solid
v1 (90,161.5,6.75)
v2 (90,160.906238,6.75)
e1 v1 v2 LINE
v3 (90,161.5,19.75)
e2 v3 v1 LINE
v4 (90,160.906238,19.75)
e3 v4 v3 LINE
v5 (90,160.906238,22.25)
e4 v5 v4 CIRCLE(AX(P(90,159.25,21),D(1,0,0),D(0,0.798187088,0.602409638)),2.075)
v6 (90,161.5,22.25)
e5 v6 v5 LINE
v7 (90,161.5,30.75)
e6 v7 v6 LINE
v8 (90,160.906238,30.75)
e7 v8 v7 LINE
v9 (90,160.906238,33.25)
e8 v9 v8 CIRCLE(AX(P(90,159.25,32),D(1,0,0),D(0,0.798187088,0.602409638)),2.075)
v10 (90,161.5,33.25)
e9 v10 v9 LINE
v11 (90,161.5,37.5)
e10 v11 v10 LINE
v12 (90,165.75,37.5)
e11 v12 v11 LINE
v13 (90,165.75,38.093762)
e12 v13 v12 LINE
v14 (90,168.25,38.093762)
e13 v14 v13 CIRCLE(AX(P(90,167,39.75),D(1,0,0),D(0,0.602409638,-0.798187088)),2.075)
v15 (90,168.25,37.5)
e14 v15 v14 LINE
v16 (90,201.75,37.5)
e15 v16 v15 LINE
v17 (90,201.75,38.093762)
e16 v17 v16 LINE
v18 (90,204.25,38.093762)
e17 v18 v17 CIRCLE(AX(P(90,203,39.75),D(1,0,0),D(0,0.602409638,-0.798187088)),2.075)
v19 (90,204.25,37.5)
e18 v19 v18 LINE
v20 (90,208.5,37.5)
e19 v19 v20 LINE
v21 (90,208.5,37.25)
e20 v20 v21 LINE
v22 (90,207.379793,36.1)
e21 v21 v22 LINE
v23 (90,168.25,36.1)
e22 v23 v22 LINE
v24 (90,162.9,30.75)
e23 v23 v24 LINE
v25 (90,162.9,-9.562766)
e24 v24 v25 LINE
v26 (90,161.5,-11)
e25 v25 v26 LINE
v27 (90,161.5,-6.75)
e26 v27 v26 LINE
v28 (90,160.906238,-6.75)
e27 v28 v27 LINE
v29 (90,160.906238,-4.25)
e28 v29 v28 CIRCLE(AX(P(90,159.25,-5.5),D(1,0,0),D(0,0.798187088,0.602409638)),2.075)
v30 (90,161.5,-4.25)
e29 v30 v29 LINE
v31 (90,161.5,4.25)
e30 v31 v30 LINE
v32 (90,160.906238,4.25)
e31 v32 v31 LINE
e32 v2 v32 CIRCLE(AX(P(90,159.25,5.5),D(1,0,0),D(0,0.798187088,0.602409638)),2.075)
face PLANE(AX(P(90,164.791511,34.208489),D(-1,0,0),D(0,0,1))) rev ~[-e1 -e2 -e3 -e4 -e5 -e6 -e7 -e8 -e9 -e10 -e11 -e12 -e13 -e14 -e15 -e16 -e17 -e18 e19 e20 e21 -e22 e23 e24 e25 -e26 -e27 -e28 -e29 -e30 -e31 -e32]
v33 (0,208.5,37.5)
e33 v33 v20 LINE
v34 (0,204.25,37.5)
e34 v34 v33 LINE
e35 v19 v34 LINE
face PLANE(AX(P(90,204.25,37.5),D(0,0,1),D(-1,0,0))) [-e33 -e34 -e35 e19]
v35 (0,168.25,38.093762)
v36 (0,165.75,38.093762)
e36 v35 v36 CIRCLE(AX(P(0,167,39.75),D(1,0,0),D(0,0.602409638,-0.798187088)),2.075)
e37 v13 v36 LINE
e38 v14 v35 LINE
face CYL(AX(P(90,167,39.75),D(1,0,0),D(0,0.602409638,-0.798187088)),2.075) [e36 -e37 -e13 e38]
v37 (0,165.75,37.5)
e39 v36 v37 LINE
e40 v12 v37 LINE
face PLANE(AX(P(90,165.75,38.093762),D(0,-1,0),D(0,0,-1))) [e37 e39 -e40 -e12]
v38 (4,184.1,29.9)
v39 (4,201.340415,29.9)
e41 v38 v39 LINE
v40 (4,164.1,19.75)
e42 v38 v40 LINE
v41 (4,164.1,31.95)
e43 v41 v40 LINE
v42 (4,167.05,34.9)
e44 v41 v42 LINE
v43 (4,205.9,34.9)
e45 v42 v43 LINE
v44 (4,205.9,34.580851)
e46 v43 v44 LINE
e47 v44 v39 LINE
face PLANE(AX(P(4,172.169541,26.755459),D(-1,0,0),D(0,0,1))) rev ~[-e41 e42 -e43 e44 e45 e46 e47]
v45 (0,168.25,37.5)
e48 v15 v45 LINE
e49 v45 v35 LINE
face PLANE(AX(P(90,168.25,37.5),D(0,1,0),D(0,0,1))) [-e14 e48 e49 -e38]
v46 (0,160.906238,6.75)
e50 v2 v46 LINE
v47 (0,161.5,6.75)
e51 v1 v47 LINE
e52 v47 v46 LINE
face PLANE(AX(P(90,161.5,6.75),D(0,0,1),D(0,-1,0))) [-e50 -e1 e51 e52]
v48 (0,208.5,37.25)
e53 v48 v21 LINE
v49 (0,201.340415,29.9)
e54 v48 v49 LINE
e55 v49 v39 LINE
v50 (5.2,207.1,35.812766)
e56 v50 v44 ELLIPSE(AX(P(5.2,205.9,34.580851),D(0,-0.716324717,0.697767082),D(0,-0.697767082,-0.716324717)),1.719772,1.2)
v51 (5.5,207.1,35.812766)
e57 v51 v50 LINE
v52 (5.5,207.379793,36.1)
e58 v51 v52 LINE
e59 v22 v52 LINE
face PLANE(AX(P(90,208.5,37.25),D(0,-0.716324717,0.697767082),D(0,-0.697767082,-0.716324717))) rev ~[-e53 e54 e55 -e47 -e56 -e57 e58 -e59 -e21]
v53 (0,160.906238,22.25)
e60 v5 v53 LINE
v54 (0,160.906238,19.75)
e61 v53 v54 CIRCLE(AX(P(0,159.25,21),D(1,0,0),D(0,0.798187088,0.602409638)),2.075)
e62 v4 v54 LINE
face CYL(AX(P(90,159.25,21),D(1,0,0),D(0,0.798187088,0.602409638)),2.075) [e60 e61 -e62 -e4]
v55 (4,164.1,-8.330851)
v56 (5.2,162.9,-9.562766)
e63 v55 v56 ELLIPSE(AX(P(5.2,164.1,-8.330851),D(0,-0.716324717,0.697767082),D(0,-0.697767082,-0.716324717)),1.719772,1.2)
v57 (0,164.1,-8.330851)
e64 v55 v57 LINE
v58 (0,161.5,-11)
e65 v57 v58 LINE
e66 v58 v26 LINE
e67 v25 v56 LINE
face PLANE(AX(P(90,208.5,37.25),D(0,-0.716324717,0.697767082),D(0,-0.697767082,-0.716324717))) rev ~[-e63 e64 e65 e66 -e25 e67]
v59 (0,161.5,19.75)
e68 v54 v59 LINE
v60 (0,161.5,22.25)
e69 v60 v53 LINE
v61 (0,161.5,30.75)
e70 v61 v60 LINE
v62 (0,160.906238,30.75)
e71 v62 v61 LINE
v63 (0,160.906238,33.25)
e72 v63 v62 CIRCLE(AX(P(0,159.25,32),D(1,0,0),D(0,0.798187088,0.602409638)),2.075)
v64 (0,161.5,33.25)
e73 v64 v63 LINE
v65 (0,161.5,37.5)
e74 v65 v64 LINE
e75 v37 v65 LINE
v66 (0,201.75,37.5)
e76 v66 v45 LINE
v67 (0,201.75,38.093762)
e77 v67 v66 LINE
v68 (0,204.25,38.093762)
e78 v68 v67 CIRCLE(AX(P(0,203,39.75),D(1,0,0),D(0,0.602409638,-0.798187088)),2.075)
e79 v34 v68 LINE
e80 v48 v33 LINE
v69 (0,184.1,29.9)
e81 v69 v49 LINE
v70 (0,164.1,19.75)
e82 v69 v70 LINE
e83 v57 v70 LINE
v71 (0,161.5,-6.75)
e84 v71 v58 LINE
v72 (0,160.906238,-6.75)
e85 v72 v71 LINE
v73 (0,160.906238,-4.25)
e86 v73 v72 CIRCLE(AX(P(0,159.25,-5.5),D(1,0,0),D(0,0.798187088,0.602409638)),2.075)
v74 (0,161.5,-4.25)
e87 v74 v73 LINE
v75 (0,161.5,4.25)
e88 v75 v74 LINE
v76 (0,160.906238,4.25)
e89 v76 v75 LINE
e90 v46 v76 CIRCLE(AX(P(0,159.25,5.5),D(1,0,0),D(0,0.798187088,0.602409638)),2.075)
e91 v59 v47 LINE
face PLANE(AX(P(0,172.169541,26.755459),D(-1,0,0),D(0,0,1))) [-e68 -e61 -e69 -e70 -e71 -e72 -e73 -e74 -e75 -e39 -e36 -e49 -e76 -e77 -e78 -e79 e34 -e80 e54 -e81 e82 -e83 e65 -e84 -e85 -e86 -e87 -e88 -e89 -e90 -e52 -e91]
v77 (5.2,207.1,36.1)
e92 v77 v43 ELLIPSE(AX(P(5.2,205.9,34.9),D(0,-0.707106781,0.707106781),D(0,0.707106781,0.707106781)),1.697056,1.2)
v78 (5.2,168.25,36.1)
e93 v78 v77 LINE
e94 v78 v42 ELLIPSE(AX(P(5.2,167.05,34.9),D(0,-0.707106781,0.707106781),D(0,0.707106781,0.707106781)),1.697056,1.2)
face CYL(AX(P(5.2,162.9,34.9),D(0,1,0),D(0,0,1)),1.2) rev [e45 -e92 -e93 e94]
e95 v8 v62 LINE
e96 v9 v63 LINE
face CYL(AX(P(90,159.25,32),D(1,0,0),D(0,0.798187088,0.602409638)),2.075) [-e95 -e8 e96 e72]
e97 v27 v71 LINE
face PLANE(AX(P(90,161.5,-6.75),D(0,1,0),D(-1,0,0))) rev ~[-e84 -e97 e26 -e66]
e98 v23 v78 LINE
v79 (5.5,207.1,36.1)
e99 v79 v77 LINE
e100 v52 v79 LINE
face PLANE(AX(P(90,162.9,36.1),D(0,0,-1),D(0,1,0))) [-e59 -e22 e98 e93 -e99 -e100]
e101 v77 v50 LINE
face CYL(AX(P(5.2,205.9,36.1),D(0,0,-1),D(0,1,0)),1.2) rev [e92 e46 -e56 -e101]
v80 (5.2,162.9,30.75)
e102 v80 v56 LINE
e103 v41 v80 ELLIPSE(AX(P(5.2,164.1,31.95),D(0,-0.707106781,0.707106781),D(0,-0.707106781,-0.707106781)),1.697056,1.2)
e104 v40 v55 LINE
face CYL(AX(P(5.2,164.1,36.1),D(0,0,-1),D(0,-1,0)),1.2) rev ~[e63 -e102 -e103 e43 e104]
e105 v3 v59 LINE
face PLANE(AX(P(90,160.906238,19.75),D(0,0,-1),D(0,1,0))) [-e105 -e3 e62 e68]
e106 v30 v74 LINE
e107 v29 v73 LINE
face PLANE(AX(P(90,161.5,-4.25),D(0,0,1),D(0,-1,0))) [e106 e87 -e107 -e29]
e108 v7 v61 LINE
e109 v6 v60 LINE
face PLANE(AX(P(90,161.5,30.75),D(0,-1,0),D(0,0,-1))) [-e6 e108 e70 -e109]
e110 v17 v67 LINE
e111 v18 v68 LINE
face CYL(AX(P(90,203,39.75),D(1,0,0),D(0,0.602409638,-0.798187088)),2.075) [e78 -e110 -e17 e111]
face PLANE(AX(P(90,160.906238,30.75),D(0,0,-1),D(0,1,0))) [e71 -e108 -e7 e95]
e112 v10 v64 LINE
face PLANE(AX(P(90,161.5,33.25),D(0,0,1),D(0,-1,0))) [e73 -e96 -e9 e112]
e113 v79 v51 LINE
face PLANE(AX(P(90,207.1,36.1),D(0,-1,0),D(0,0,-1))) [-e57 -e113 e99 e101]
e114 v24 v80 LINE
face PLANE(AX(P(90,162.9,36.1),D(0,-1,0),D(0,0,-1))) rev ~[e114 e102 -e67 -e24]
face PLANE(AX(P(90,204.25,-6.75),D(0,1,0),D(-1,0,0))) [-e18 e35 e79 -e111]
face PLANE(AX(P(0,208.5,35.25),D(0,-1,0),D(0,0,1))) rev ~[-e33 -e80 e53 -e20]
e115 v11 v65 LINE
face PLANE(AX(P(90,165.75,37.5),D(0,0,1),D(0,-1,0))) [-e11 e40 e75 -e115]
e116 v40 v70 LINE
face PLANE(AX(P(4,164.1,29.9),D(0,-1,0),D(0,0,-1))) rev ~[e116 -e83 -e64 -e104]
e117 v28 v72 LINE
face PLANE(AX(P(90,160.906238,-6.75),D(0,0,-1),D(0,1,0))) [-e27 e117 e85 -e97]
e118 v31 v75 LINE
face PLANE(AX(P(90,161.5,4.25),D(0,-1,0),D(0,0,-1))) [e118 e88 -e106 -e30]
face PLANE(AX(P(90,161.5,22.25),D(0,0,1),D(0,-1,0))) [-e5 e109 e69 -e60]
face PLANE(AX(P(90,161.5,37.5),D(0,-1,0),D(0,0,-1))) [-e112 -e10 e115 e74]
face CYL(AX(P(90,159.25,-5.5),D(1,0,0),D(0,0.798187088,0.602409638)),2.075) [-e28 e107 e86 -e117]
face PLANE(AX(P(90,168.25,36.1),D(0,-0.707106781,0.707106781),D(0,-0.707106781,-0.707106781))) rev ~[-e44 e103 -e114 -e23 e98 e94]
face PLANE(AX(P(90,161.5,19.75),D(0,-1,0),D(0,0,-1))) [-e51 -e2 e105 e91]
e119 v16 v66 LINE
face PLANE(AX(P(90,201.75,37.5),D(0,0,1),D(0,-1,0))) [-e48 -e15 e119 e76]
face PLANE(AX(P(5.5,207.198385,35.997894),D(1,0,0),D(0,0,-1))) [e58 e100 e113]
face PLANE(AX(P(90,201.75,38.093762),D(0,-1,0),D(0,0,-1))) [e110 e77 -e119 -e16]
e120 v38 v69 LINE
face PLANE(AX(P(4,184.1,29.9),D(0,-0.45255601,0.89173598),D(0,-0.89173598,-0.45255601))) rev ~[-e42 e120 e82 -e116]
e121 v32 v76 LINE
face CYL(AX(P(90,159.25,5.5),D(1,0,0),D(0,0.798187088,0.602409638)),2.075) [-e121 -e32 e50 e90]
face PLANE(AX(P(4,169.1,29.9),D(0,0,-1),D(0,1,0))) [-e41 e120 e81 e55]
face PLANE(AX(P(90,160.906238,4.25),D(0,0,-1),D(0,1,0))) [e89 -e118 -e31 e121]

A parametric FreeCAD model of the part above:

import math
import FreeCAD as App
import Part
import Sketcher

V = App.Vector


def edges_at(feature, points):
    """Names of the edges that pass closest to the given points."""
    edges = feature.Shape.Edges
    near = lambda p: min(range(len(edges)), key=lambda i: edges[i].distToShape(Part.Vertex(*p))[0])
    return sorted({f"Edge{near(p) + 1}" for p in points})


def add_polygon(sketch, points):
    """Adds a closed chain of lines whose ends are joined by coincident constraints."""
    first, n = sketch.GeometryCount, len(points)
    for a, b in zip(points, points[1:] + points[:1]):
        sketch.addGeometry(Part.LineSegment(App.Vector(*a, 0), App.Vector(*b, 0)), False)
    for i in range(n):
        sketch.addConstraint(Sketcher.Constraint("Coincident", first + i, 2, first + (i + 1) % n, 1))

doc = App.newDocument("Part")
body = doc.addObject("PartDesign::Body", "Body")

# Sketch on YZ plane
sketch1 = body.newObject("Sketcher::SketchObject", "Sketch")
sketch1.AttachmentSupport = (doc.getObject("YZ_Plane"), [""])
sketch1.MapMode = "FlatFace"
sketch1.AttachmentOffset = App.Placement(V(0, 0, 90), App.Rotation())
sketch1.addGeometry([
    Part.LineSegment(V(160.9, -6.8, 0), V(204.2, -6.8, 0)),  # 0
    Part.LineSegment(V(204.2, -6.8, 0), V(204.2, 38.1, 0)),  # 1
    Part.ArcOfCircle(Part.Circle(V(203, 39.8, 0), V(0, 0, 1), 2.1), math.radians(-53), math.radians(233)),  # 2
    Part.LineSegment(V(201.8, 38.1, 0), V(201.8, 37.5, 0)),  # 3
    Part.LineSegment(V(201.8, 37.5, 0), V(168.2, 37.5, 0)),  # 4
    Part.LineSegment(V(168.2, 37.5, 0), V(168.2, 38.1, 0)),  # 5
    Part.ArcOfCircle(Part.Circle(V(167, 39.8, 0), V(0, 0, 1), 2.1), math.radians(-53), math.radians(233)),  # 6
    Part.LineSegment(V(165.8, 38.1, 0), V(165.8, 37.5, 0)),  # 7
    Part.LineSegment(V(165.8, 37.5, 0), V(161.5, 37.5, 0)),  # 8
    Part.LineSegment(V(161.5, 37.5, 0), V(161.5, 33.2, 0)),  # 9
    Part.LineSegment(V(161.5, 33.2, 0), V(160.9, 33.2, 0)),  # 10
    Part.ArcOfCircle(Part.Circle(V(159.2, 32, 0), V(0, 0, 1), 2.1), math.radians(37), math.radians(323)),  # 11
    Part.LineSegment(V(160.9, 30.8, 0), V(161.5, 30.8, 0)),  # 12
    Part.LineSegment(V(161.5, 30.8, 0), V(161.5, 22.2, 0)),  # 13
    Part.LineSegment(V(161.5, 22.2, 0), V(160.9, 22.2, 0)),  # 14
    Part.ArcOfCircle(Part.Circle(V(159.2, 21, 0), V(0, 0, 1), 2.1), math.radians(37), math.radians(323)),  # 15
    Part.LineSegment(V(160.9, 19.8, 0), V(161.5, 19.8, 0)),  # 16
    Part.LineSegment(V(161.5, 19.8, 0), V(161.5, 6.8, 0)),  # 17
    Part.LineSegment(V(161.5, 6.8, 0), V(160.9, 6.8, 0)),  # 18
    Part.ArcOfCircle(Part.Circle(V(159.2, 5.5, 0), V(0, 0, 1), 2.1), math.radians(37), math.radians(323)),  # 19
    Part.LineSegment(V(160.9, 4.2, 0), V(161.5, 4.2, 0)),  # 20
    Part.LineSegment(V(161.5, 4.2, 0), V(161.5, -4.2, 0)),  # 21
    Part.LineSegment(V(161.5, -4.2, 0), V(160.9, -4.2, 0)),  # 22
    Part.ArcOfCircle(Part.Circle(V(159.2, -5.5, 0), V(0, 0, 1), 2.1), math.radians(37), math.radians(323)),  # 23
], False)
sketch1.addConstraint([
    Sketcher.Constraint("Coincident", 0, 2, 1, 1),
    Sketcher.Constraint("Coincident", 1, 2, 2, 1),
    Sketcher.Constraint("Coincident", 2, 2, 3, 1),
    Sketcher.Constraint("Coincident", 3, 2, 4, 1),
    Sketcher.Constraint("Coincident", 4, 2, 5, 1),
    Sketcher.Constraint("Coincident", 5, 2, 6, 1),
    Sketcher.Constraint("Coincident", 6, 2, 7, 1),
    Sketcher.Constraint("Coincident", 7, 2, 8, 1),
    Sketcher.Constraint("Coincident", 8, 2, 9, 1),
    Sketcher.Constraint("Coincident", 9, 2, 10, 1),
    Sketcher.Constraint("Coincident", 10, 2, 11, 1),
    Sketcher.Constraint("Coincident", 11, 2, 12, 1),
    Sketcher.Constraint("Coincident", 12, 2, 13, 1),
    Sketcher.Constraint("Coincident", 13, 2, 14, 1),
    Sketcher.Constraint("Coincident", 14, 2, 15, 1),
    Sketcher.Constraint("Coincident", 15, 2, 16, 1),
    Sketcher.Constraint("Coincident", 16, 2, 17, 1),
    Sketcher.Constraint("Coincident", 17, 2, 18, 1),
    Sketcher.Constraint("Coincident", 18, 2, 19, 1),
    Sketcher.Constraint("Coincident", 19, 2, 20, 1),
    Sketcher.Constraint("Coincident", 20, 2, 21, 1),
    Sketcher.Constraint("Coincident", 21, 2, 22, 1),
    Sketcher.Constraint("Coincident", 22, 2, 23, 1),
    Sketcher.Constraint("Coincident", 23, 2, 0, 1),
    Sketcher.Constraint("Horizontal", 0),
    Sketcher.Constraint("Vertical", 1),
    Sketcher.Constraint("Vertical", 3),
    Sketcher.Constraint("Horizontal", 4),
    Sketcher.Constraint("Vertical", 5),
    Sketcher.Constraint("Vertical", 7),
    Sketcher.Constraint("Horizontal", 8),
    Sketcher.Constraint("Vertical", 9),
    Sketcher.Constraint("Horizontal", 10),
    Sketcher.Constraint("Horizontal", 12),
    Sketcher.Constraint("Vertical", 13),
    Sketcher.Constraint("Horizontal", 14),
    Sketcher.Constraint("Horizontal", 16),
    Sketcher.Constraint("Vertical", 17),
    Sketcher.Constraint("Horizontal", 18),
    Sketcher.Constraint("Horizontal", 20),
    Sketcher.Constraint("Vertical", 21),
    Sketcher.Constraint("Horizontal", 22),
    Sketcher.Constraint("Equal", 2, 6),
    Sketcher.Constraint("Equal", 6, 11),
    Sketcher.Constraint("Equal", 11, 15),
    Sketcher.Constraint("Equal", 15, 19),
    Sketcher.Constraint("Equal", 19, 23),
    Sketcher.Constraint("Symmetric", 19, 3, 23, 3, -1),
    Sketcher.Constraint("Horizontal", 2, 3, 6, 3),
    Sketcher.Constraint("Horizontal", 1, 2, 2, 2),
    Sketcher.Constraint("Horizontal", 2, 2, 5, 2),
    Sketcher.Constraint("Horizontal", 5, 2, 6, 2),
    Sketcher.Constraint("Horizontal", 4, 2, 7, 2),
    Sketcher.Constraint("Vertical", 11, 3, 15, 3),
    Sketcher.Constraint("Vertical", 15, 3, 19, 3),
    Sketcher.Constraint("Vertical", 10, 2, 11, 2),
    Sketcher.Constraint("Vertical", 9, 2, 12, 2),
    Sketcher.Constraint("Vertical", 11, 2, 14, 2),
    Sketcher.Constraint("Vertical", 14, 2, 15, 2),
    Sketcher.Constraint("Vertical", 13, 2, 16, 2),
    Sketcher.Constraint("Vertical", 15, 2, 18, 2),
    Sketcher.Constraint("Vertical", 18, 2, 19, 2),
    Sketcher.Constraint("Vertical", 17, 2, 20, 2),
    Sketcher.Constraint("Vertical", 19, 2, 22, 2),
    Sketcher.Constraint("Vertical", 22, 2, 23, 2),
    Sketcher.Constraint("Equal", 22, 3),
    Sketcher.Constraint("Equal", 8, 9),
    Sketcher.Constraint("Equal", 13, 21),
    Sketcher.Constraint("DistanceY", 17, 2, 17, 1, 13.0),
    Sketcher.Constraint("DistanceX", 4, 2, 4, 1, 33.5),
    Sketcher.Constraint("DistanceY", 13, 2, 13, 1, 8.5),
    Sketcher.Constraint("DistanceX", -1, 1, 2, 3, 203.0),
    Sketcher.Constraint("DistanceX", -1, 1, 6, 3, 167.0),
    Sketcher.Constraint("DistanceY", -1, 1, 11, 3, 32.0),
    Sketcher.Constraint("Radius", 2, 2.075),
    Sketcher.Constraint("DistanceX", 23, 3, 0, 2, 45.0),
    Sketcher.Constraint("DistanceY", 19, 3, 4, 2, 32.0),
])
pad1 = body.newObject("PartDesign::Pad", "Pad")
pad1.Profile = sketch1
pad1.Length = 90
pad1.Reversed = True

# Sketch on XY plane
sketch2 = body.newObject("Sketcher::SketchObject", "Sketch001")
sketch2.AttachmentSupport = (doc.getObject("XY_Plane"), [""])
sketch2.MapMode = "FlatFace"
sketch2.AttachmentOffset = App.Placement(V(0, 0, -6.75), App.Rotation())
add_polygon(sketch2, [(90, 204), (90, 162), (0, 162), (0, 204)])  # lines 0-3
sketch2.addConstraint([
    Sketcher.Constraint("Vertical", 0),
    Sketcher.Constraint("Horizontal", 1),
    Sketcher.Constraint("Vertical", 2),
    Sketcher.Constraint("Horizontal", 3),
    Sketcher.Constraint("PointOnObject", 1, 2, -2),
    Sketcher.Constraint("DistanceX", 1, 2, 1, 1, 90.0),
    Sketcher.Constraint("DistanceY", 0, 2, 0, 1, 42.75),
    Sketcher.Constraint("DistanceY", -1, 1, 0, 2, 161.5),
])
pad2 = body.newObject("PartDesign::Pad", "Pad001")
pad2.Profile = sketch2
pad2.Length = 8.2
pad2.Reversed = True

# Sketch on XZ plane
sketch3 = body.newObject("Sketcher::SketchObject", "Sketch002")
sketch3.AttachmentSupport = (doc.getObject("XZ_Plane"), [""])
sketch3.MapMode = "FlatFace"
sketch3.AttachmentOffset = App.Placement(V(0, 0, -204.25), App.Rotation())
add_polygon(sketch3, [(90, 38), (90, -15), (0, -15), (0, 38)])  # lines 0-3
sketch3.addConstraint([
    Sketcher.Constraint("Vertical", 0),
    Sketcher.Constraint("Horizontal", 1),
    Sketcher.Constraint("Vertical", 2),
    Sketcher.Constraint("Horizontal", 3),
    Sketcher.Constraint("PointOnObject", 1, 2, -2),
    Sketcher.Constraint("DistanceX", 1, 2, 1, 1, 90.0),
    Sketcher.Constraint("DistanceY", 0, 2, 0, 1, 52.45),
    Sketcher.Constraint("DistanceY", -1, 1, 2, 2, 37.5),
])
pad3 = body.newObject("PartDesign::Pad", "Pad002")
pad3.Profile = sketch3
pad3.Length = 8.2
pad3.Reversed = True

# Sketch on YZ plane
sketch4 = body.newObject("Sketcher::SketchObject", "Sketch003")
sketch4.AttachmentSupport = (doc.getObject("YZ_Plane"), [""])
sketch4.MapMode = "FlatFace"
add_polygon(sketch4, [(163.8, -14.9), (161.5, -14.9), (161.5, -11), (163.8, -11)])  # lines 0-3
sketch4.addConstraint([
    Sketcher.Constraint("Horizontal", 0),
    Sketcher.Constraint("Vertical", 1),
    Sketcher.Constraint("Horizontal", 2),
    Sketcher.Constraint("Vertical", 3),
    Sketcher.Constraint("DistanceY", 1, 2, -1, 1, 11.0),
    Sketcher.Constraint("DistanceX", 0, 2, 0, 1, 2.25),
    Sketcher.Constraint("DistanceY", 1, 1, 1, 2, 3.95),
    Sketcher.Constraint("DistanceX", -1, 1, 0, 2, 161.5),
])
pocket1 = body.newObject("PartDesign::Pocket", "Pocket")
pocket1.Profile = sketch4
pocket1.Type = "ThroughAll"
pocket1.Reversed = True

# Sketch on YZ plane
sketch5 = body.newObject("Sketcher::SketchObject", "Sketch004")
sketch5.AttachmentSupport = (doc.getObject("YZ_Plane"), [""])
sketch5.MapMode = "FlatFace"
add_polygon(sketch5, [(199.8, -14.9), (170.2, -14.9), (170.2, -11), (199.8, -11)])  # lines 0-3
sketch5.addConstraint([
    Sketcher.Constraint("Horizontal", 0),
    Sketcher.Constraint("Vertical", 1),
    Sketcher.Constraint("Horizontal", 2),
    Sketcher.Constraint("Vertical", 3),
    Sketcher.Constraint("DistanceX", 0, 2, 0, 1, 29.5),
    Sketcher.Constraint("DistanceY", 1, 2, -1, 1, 11.0),
    Sketcher.Constraint("DistanceY", 1, 1, 1, 2, 3.95),
    Sketcher.Constraint("DistanceX", -1, 1, 0, 2, 170.25),
])
pocket2 = body.newObject("PartDesign::Pocket", "Pocket001")
pocket2.Profile = sketch5
pocket2.Type = "ThroughAll"
pocket2.Reversed = True

# Sketch on YZ plane
sketch6 = body.newObject("Sketcher::SketchObject", "Sketch005")
sketch6.AttachmentSupport = (doc.getObject("YZ_Plane"), [""])
sketch6.MapMode = "FlatFace"
add_polygon(sketch6, [(212.4, -14.9), (206.2, -14.9), (206.2, -11), (212.4, -11)])  # lines 0-3
sketch6.addConstraint([
    Sketcher.Constraint("Horizontal", 0),
    Sketcher.Constraint("Vertical", 1),
    Sketcher.Constraint("Horizontal", 2),
    Sketcher.Constraint("Vertical", 3),
    Sketcher.Constraint("DistanceX", 0, 2, 0, 1, 6.2),
    Sketcher.Constraint("DistanceY", 1, 2, -1, 1, 11.0),
    Sketcher.Constraint("DistanceY", 1, 1, 1, 2, 3.95),
    Sketcher.Constraint("DistanceX", -1, 1, 0, 2, 206.25),
])
pocket3 = body.newObject("PartDesign::Pocket", "Pocket002")
pocket3.Profile = sketch6
pocket3.Type = "ThroughAll"
pocket3.Reversed = True

# Sketch on YZ plane
sketch7 = body.newObject("Sketcher::SketchObject", "Sketch006")
sketch7.AttachmentSupport = (doc.getObject("YZ_Plane"), [""])
sketch7.MapMode = "FlatFace"
add_polygon(sketch7, [(212.4, -11), (208.5, -11), (208.5, -8.8), (212.4, -8.8)])  # lines 0-3
sketch7.addConstraint([
    Sketcher.Constraint("Horizontal", 0),
    Sketcher.Constraint("Vertical", 1),
    Sketcher.Constraint("Horizontal", 2),
    Sketcher.Constraint("Vertical", 3),
    Sketcher.Constraint("DistanceY", 0, 2, -1, 1, 11.0),
    Sketcher.Constraint("DistanceX", 0, 2, 0, 1, 3.95),
    Sketcher.Constraint("DistanceY", 1, 1, 1, 2, 2.25),
    Sketcher.Constraint("DistanceX", -1, 1, 0, 2, 208.5),
])
pocket4 = body.newObject("PartDesign::Pocket", "Pocket003")
pocket4.Profile = sketch7
pocket4.Type = "ThroughAll"
pocket4.Reversed = True

# Sketch on YZ plane
sketch8 = body.newObject("Sketcher::SketchObject", "Sketch007")
sketch8.AttachmentSupport = (doc.getObject("YZ_Plane"), [""])
sketch8.MapMode = "FlatFace"
add_polygon(sketch8, [(212.4, -2.2), (208.5, -2.2), (208.5, 2.2), (212.4, 2.2)])  # lines 0-3
sketch8.addConstraint([
    Sketcher.Constraint("Horizontal", 0),
    Sketcher.Constraint("Vertical", 1),
    Sketcher.Constraint("Horizontal", 2),
    Sketcher.Constraint("Vertical", 3),
    Sketcher.Constraint("DistanceY", 1, 1, 1, 2, 4.5),
    Sketcher.Constraint("DistanceX", 0, 2, 0, 1, 3.95),
    Sketcher.Constraint("DistanceX", -1, 1, 0, 2, 208.5),
    Sketcher.Constraint("DistanceY", 0, 2, -1, 1, 2.25),
])
pocket5 = body.newObject("PartDesign::Pocket", "Pocket004")
pocket5.Profile = sketch8
pocket5.Type = "ThroughAll"
pocket5.Reversed = True

# Sketch on YZ plane
sketch9 = body.newObject("Sketcher::SketchObject", "Sketch008")
sketch9.AttachmentSupport = (doc.getObject("YZ_Plane"), [""])
sketch9.MapMode = "FlatFace"
add_polygon(sketch9, [(212.4, 8.8), (208.5, 8.8), (208.5, 17.8), (212.4, 17.8)])  # lines 0-3
sketch9.addConstraint([
    Sketcher.Constraint("Horizontal", 0),
    Sketcher.Constraint("Vertical", 1),
    Sketcher.Constraint("Horizontal", 2),
    Sketcher.Constraint("Vertical", 3),
    Sketcher.Constraint("DistanceY", 1, 1, 1, 2, 9.0),
    Sketcher.Constraint("DistanceX", 0, 2, 0, 1, 3.95),
    Sketcher.Constraint("DistanceX", -1, 1, 0, 2, 208.5),
    Sketcher.Constraint("DistanceY", -1, 1, 0, 2, 8.75),
])
pocket6 = body.newObject("PartDesign::Pocket", "Pocket005")
pocket6.Profile = sketch9
pocket6.Type = "ThroughAll"
pocket6.Reversed = True

# Sketch on YZ plane
sketch10 = body.newObject("Sketcher::SketchObject", "Sketch009")
sketch10.AttachmentSupport = (doc.getObject("YZ_Plane"), [""])
sketch10.MapMode = "FlatFace"
add_polygon(sketch10, [(212.4, 24.2), (208.5, 24.2), (208.5, 28.8), (212.4, 28.8)])  # lines 0-3
sketch10.addConstraint([
    Sketcher.Constraint("Horizontal", 0),
    Sketcher.Constraint("Vertical", 1),
    Sketcher.Constraint("Horizontal", 2),
    Sketcher.Constraint("Vertical", 3),
    Sketcher.Constraint("DistanceY", 1, 1, 1, 2, 4.5),
    Sketcher.Constraint("DistanceX", 0, 2, 0, 1, 3.95),
    Sketcher.Constraint("DistanceX", -1, 1, 0, 2, 208.5),
    Sketcher.Constraint("DistanceY", -1, 1, 0, 2, 24.25),
])
pocket7 = body.newObject("PartDesign::Pocket", "Pocket006")
pocket7.Profile = sketch10
pocket7.Type = "ThroughAll"
pocket7.Reversed = True

# Sketch on YZ plane
sketch11 = body.newObject("Sketcher::SketchObject", "Sketch010")
sketch11.AttachmentSupport = (doc.getObject("YZ_Plane"), [""])
sketch11.MapMode = "FlatFace"
add_polygon(sketch11, [(212.4, 35.2), (208.5, 35.2), (208.5, 37.5), (212.4, 37.5)])  # lines 0-3
sketch11.addConstraint([
    Sketcher.Constraint("Horizontal", 0),
    Sketcher.Constraint("Vertical", 1),
    Sketcher.Constraint("Horizontal", 2),
    Sketcher.Constraint("Vertical", 3),
    Sketcher.Constraint("DistanceX", 0, 2, 0, 1, 3.95),
    Sketcher.Constraint("DistanceY", 1, 1, 1, 2, 2.25),
    Sketcher.Constraint("DistanceX", -1, 1, 0, 2, 208.5),
    Sketcher.Constraint("DistanceY", -1, 1, 1, 2, 37.5),
])
pocket8 = body.newObject("PartDesign::Pocket", "Pocket007")
pocket8.Profile = sketch11
pocket8.Type = "ThroughAll"
pocket8.Reversed = True

# Sketch on YZ plane
sketch12 = body.newObject("Sketcher::SketchObject", "Sketch011")
sketch12.AttachmentSupport = (doc.getObject("YZ_Plane"), [""])
sketch12.MapMode = "FlatFace"
sketch12.AttachmentOffset = App.Placement(V(0, 0, 90), App.Rotation())
add_polygon(sketch12, [(207, 36), (163, 36), (163, -10), (207, -10)])  # lines 0-3
sketch12.addConstraint([
    Sketcher.Constraint("Horizontal", 0),
    Sketcher.Constraint("Vertical", 1),
    Sketcher.Constraint("Horizontal", 2),
    Sketcher.Constraint("Vertical", 3),
    Sketcher.Constraint("DistanceX", 0, 2, 0, 1, 44.2),
    Sketcher.Constraint("DistanceY", 1, 2, 1, 1, 45.7),
    Sketcher.Constraint("DistanceX", -1, 1, 0, 2, 162.9),
    Sketcher.Constraint("DistanceY", -1, 1, 0, 2, 36.1),
])
pocket9 = body.newObject("PartDesign::Pocket", "Pocket008")
pocket9.Profile = sketch12
pocket9.Length = 86

# Sketch on YZ plane
sketch13 = body.newObject("Sketcher::SketchObject", "Sketch012")
sketch13.AttachmentSupport = (doc.getObject("YZ_Plane"), [""])
sketch13.MapMode = "FlatFace"
sketch13.AttachmentOffset = App.Placement(V(0, 0, 90), App.Rotation())
sketch13.addGeometry([
    Part.Circle(V(159.2, -5.5, 0), V(0, 0, 1), 1.2),  # 0
    Part.Circle(V(159.2, 21, 0), V(0, 0, 1), 1.2),  # 1
    Part.Circle(V(159.2, 5.5, 0), V(0, 0, 1), 1.2),  # 2
    Part.Circle(V(159.2, 32, 0), V(0, 0, 1), 1.2),  # 3
    Part.Circle(V(167, 39.8, 0), V(0, 0, 1), 1.2),  # 4
    Part.Circle(V(203, 39.8, 0), V(0, 0, 1), 1.2),  # 5
], False)
sketch13.addConstraint([
    Sketcher.Constraint("Equal", 0, 1),
    Sketcher.Constraint("Equal", 1, 2),
    Sketcher.Constraint("Equal", 2, 3),
    Sketcher.Constraint("Equal", 3, 4),
    Sketcher.Constraint("Equal", 4, 5),
    Sketcher.Constraint("Symmetric", 0, 3, 2, 3, -1),
    Sketcher.Constraint("Horizontal", 4, 3, 5, 3),
    Sketcher.Constraint("Vertical", 0, 3, 1, 3),
    Sketcher.Constraint("Vertical", 2, 3, 3, 3),
    Sketcher.Constraint("Diameter", 0, 2.5),
    Sketcher.Constraint("DistanceY", -1, 1, 1, 3, 21.0),
    Sketcher.Constraint("DistanceY", -1, 1, 3, 3, 32.0),
    Sketcher.Constraint("DistanceX", -1, 1, 4, 3, 167.0),
    Sketcher.Constraint("DistanceX", -1, 1, 5, 3, 203.0),
    Sketcher.Constraint("DistanceY", 0, 3, 2, 3, 11.0),
    Sketcher.Constraint("DistanceX", -1, 1, 0, 3, 159.25),
    Sketcher.Constraint("DistanceY", -1, 1, 4, 3, 39.75),
])
doc.recompute()
hole = body.newObject("PartDesign::Hole", "Hole")
hole.Profile = sketch13
hole.ThreadType = "None"
hole.Diameter = 2.5
hole.DepthType = "ThroughAll"

# Sketch on YZ plane
sketch14 = body.newObject("Sketcher::SketchObject", "Sketch013")
sketch14.AttachmentSupport = (doc.getObject("YZ_Plane"), [""])
sketch14.MapMode = "FlatFace"
sketch14.addGeometry([
    Part.Circle(V(167, -13.2, 0), V(0, 0, 1), 2.2),  # 0
    Part.Circle(V(203, -13.2, 0), V(0, 0, 1), 2.2),  # 1
    Part.Circle(V(210.8, -5.5, 0), V(0, 0, 1), 2.2),  # 2
    Part.Circle(V(210.8, 5.5, 0), V(0, 0, 1), 2.2),  # 3
    Part.Circle(V(210.8, 21, 0), V(0, 0, 1), 2.2),  # 4
    Part.Circle(V(210.8, 32, 0), V(0, 0, 1), 2.2),  # 5
], False)
sketch14.addConstraint([
    Sketcher.Constraint("Equal", 0, 1),
    Sketcher.Constraint("Equal", 1, 2),
    Sketcher.Constraint("Equal", 2, 3),
    Sketcher.Constraint("Equal", 3, 4),
    Sketcher.Constraint("Equal", 4, 5),
    Sketcher.Constraint("Symmetric", 2, 3, 3, 3, -1),
    Sketcher.Constraint("Horizontal", 0, 3, 1, 3),
    Sketcher.Constraint("Vertical", 3, 3, 4, 3),
    Sketcher.Constraint("Vertical", 4, 3, 5, 3),
    Sketcher.Constraint("Diameter", 0, 4.5),
    Sketcher.Constraint("DistanceX", -1, 1, 0, 3, 167.0),
    Sketcher.Constraint("DistanceX", -1, 1, 1, 3, 203.0),
    Sketcher.Constraint("DistanceY", -1, 1, 4, 3, 21.0),
    Sketcher.Constraint("DistanceY", -1, 1, 5, 3, 32.0),
    Sketcher.Constraint("DistanceY", 2, 3, 3, 3, 11.0),
    Sketcher.Constraint("DistanceY", 0, 3, -1, 1, 13.25),
    Sketcher.Constraint("DistanceX", -1, 1, 2, 3, 210.75),
])
doc.recompute()
hole2 = body.newObject("PartDesign::Hole", "Hole001")
hole2.Profile = sketch14
hole2.ThreadType = "None"
hole2.Diameter = 4.5
hole2.DepthType = "ThroughAll"
hole2.Reversed = True

# Sketch on YZ plane
sketch15 = body.newObject("Sketcher::SketchObject", "Sketch014")
sketch15.AttachmentSupport = (doc.getObject("YZ_Plane"), [""])
sketch15.MapMode = "FlatFace"
sketch15.addGeometry(Part.Circle(V(185, 13.2, 0), V(0, 0, 1), 4.2), False)
sketch15.addConstraint([
    Sketcher.Constraint("Diameter", 0, 8.3),
    Sketcher.Constraint("DistanceX", -1, 1, 0, 3, 185.0),
    Sketcher.Constraint("DistanceY", -1, 1, 0, 3, 13.25),
])
doc.recompute()
hole3 = body.newObject("PartDesign::Hole", "Hole002")
hole3.Profile = sketch15
hole3.ThreadType = "None"
hole3.Diameter = 8.3
hole3.DepthType = "Dimension"
hole3.Depth = 3.2
hole3.DrillPoint = "Flat"
hole3.Reversed = True

# Sketch on YZ plane
sketch16 = body.newObject("Sketcher::SketchObject", "Sketch015")
sketch16.AttachmentSupport = (doc.getObject("YZ_Plane"), [""])
sketch16.MapMode = "FlatFace"
sketch16.AttachmentOffset = App.Placement(V(0, 0, 90), App.Rotation())
sketch16.addGeometry([
    Part.Circle(V(203, 39.8, 0), V(0, 0, 1), 1.7),  # 0
    Part.Circle(V(167, 39.8, 0), V(0, 0, 1), 1.5),  # 1
    Part.Circle(V(159.2, 32, 0), V(0, 0, 1), 1.5),  # 2
    Part.Circle(V(159.2, 21, 0), V(0, 0, 1), 1.6),  # 3
    Part.Circle(V(159.2, 5.5, 0), V(0, 0, 1), 1.5),  # 4
    Part.Circle(V(159.2, -5.5, 0), V(0, 0, 1), 1.6),  # 5
], False)
sketch16.addConstraint([
    Sketcher.Constraint("Symmetric", 4, 3, 5, 3, -1),
    Sketcher.Constraint("Horizontal", 0, 3, 1, 3),
    Sketcher.Constraint("Vertical", 2, 3, 3, 3),
    Sketcher.Constraint("Vertical", 3, 3, 4, 3),
    Sketcher.Constraint("DistanceX", -1, 1, 0, 3, 203.0),
    Sketcher.Constraint("DistanceX", -1, 1, 1, 3, 167.0),
    Sketcher.Constraint("DistanceY", -1, 1, 2, 3, 32.0),
    Sketcher.Constraint("DistanceY", -1, 1, 3, 3, 21.0),
    Sketcher.Constraint("DistanceY", 5, 3, 4, 3, 11.0),
    Sketcher.Constraint("Diameter", 1, 2.91832),
    Sketcher.Constraint("DistanceY", -1, 1, 0, 3, 39.75),
    Sketcher.Constraint("DistanceX", -1, 1, 2, 3, 159.25),
    Sketcher.Constraint("Diameter", 0, 3.345057),
    Sketcher.Constraint("Diameter", 2, 2.919818),
    Sketcher.Constraint("Diameter", 3, 3.185644),
    Sketcher.Constraint("Diameter", 4, 3.064433),
    Sketcher.Constraint("Diameter", 5, 3.192276),
])
pad4 = body.newObject("PartDesign::Pad", "Pad003")
pad4.Profile = sketch16
pad4.Length = 90
pad4.Reversed = True

# Sketch on YZ plane
sketch17 = body.newObject("Sketcher::SketchObject", "Sketch016")
sketch17.AttachmentSupport = (doc.getObject("YZ_Plane"), [""])
sketch17.MapMode = "FlatFace"
sketch17.AttachmentOffset = App.Placement(V(0, 0, 90), App.Rotation())
sketch17.addGeometry(Part.Circle(V(185, 13.2, 0), V(0, 0, 1), 4.2), False)
sketch17.addConstraint([
    Sketcher.Constraint("Diameter", 0, 8.3),
    Sketcher.Constraint("DistanceX", -1, 1, 0, 3, 185.0),
    Sketcher.Constraint("DistanceY", -1, 1, 0, 3, 13.25),
])
pocket10 = body.newObject("PartDesign::Pocket", "Pocket009")
pocket10.Profile = sketch17
pocket10.Length = 90
doc.recompute()

fillet = body.newObject("PartDesign::Fillet", "Fillet")
fillet.Base = (pocket10, edges_at(pocket10, [(45, 208.5, -8.75)]))
fillet.Radius = 2
doc.recompute()

fillet2 = body.newObject("PartDesign::Fillet", "Fillet001")
fillet2.Base = (fillet, edges_at(fillet, [(45, 163.75, -11)]))
fillet2.Radius = 2
doc.recompute()

fillet3 = body.newObject("PartDesign::Fillet", "Fillet002")
fillet3.Base = (fillet2, edges_at(fillet2, [(45, 170.25, -11)]))
fillet3.Radius = 2
doc.recompute()

fillet4 = body.newObject("PartDesign::Fillet", "Fillet003")
fillet4.Base = (fillet3, edges_at(fillet3, [(45, 199.75, -11)]))
fillet4.Radius = 2
doc.recompute()

fillet5 = body.newObject("PartDesign::Fillet", "Fillet004")
fillet5.Base = (fillet4, edges_at(fillet4, [(45, 206.25, -11)]))
fillet5.Radius = 2
doc.recompute()

fillet6 = body.newObject("PartDesign::Fillet", "Fillet005")
fillet6.Base = (fillet5, edges_at(fillet5, [(45, 208.5, -2.25)]))
fillet6.Radius = 2
doc.recompute()

fillet7 = body.newObject("PartDesign::Fillet", "Fillet006")
fillet7.Base = (fillet6, edges_at(fillet6, [(45, 208.5, 2.25)]))
fillet7.Radius = 2
doc.recompute()

fillet8 = body.newObject("PartDesign::Fillet", "Fillet007")
fillet8.Base = (fillet7, edges_at(fillet7, [(45, 208.5, 8.75)]))
fillet8.Radius = 2
doc.recompute()

fillet9 = body.newObject("PartDesign::Fillet", "Fillet008")
fillet9.Base = (fillet8, edges_at(fillet8, [(45, 208.5, 17.75)]))
fillet9.Radius = 2
doc.recompute()

fillet10 = body.newObject("PartDesign::Fillet", "Fillet009")
fillet10.Base = (fillet9, edges_at(fillet9, [(45, 208.5, 24.25)]))
fillet10.Radius = 2
doc.recompute()

fillet11 = body.newObject("PartDesign::Fillet", "Fillet010")
fillet11.Base = (fillet10, edges_at(fillet10, [(45, 208.5, 28.75)]))
fillet11.Radius = 2
doc.recompute()

fillet12 = body.newObject("PartDesign::Fillet", "Fillet011")
fillet12.Base = (fillet11, edges_at(fillet11, [(45, 208.5, 35.25)]))
fillet12.Radius = 2
doc.recompute()

fillet13 = body.newObject("PartDesign::Fillet", "Fillet012")
fillet13.Base = (fillet12, edges_at(fillet12, [
    (4, 185, -9.6),
    (4, 162.9, 13.25),
    (4, 185, 36.1),
    (4, 207.1, 13.25),
]))
fillet13.Radius = 1.2

# Sketch on YZ plane
sketch18 = body.newObject("Sketcher::SketchObject", "Sketch017")
sketch18.AttachmentSupport = (doc.getObject("YZ_Plane"), [""])
sketch18.MapMode = "FlatFace"
sketch18.AttachmentOffset = App.Placement(V(0, 0, 90), App.Rotation())
add_polygon(sketch18, [(208, 37), (162, -11), (162, -18), (215, -18), (215, 37)])  # lines 0-4
sketch18.addConstraint([
    Sketcher.Constraint("Vertical", 1),
    Sketcher.Constraint("Horizontal", 2),
    Sketcher.Constraint("Vertical", 3),
    Sketcher.Constraint("Horizontal", 4),
    Sketcher.Constraint("DistanceY", 0, 2, -1, 1, 11.0),
    Sketcher.Constraint("DistanceX", 0, 2, 4, 2, 47.0),
    Sketcher.Constraint("DistanceX", -1, 1, 0, 2, 161.5),
    Sketcher.Constraint("DistanceY", -1, 1, 3, 2, 37.25),
    Sketcher.Constraint("DistanceX", 2, 1, 2, 2, 53.383321),
    Sketcher.Constraint("DistanceY", 1, 2, 1, 1, 6.903436),
])
pocket11 = body.newObject("PartDesign::Pocket", "Pocket010")
pocket11.Profile = sketch18
pocket11.Length = 131

# Sketch on YZ plane
sketch19 = body.newObject("Sketcher::SketchObject", "Sketch018")
sketch19.AttachmentSupport = (doc.getObject("YZ_Plane"), [""])
sketch19.MapMode = "FlatFace"
sketch19.AttachmentOffset = App.Placement(V(0, 0, 4), App.Rotation())
sketch19.addGeometry([
    Part.LineSegment(V(188, 16.2, 0), V(182.2, 10.2, 0)),
    Part.ArcOfCircle(Part.Circle(V(185, 13.2, 0), V(0, 0, 1), 4.2), math.radians(45), math.radians(227)),
], False)
sketch19.addConstraint([
    Sketcher.Constraint("Coincident", 0, 1, 1, 1),
    Sketcher.Constraint("Coincident", 1, 2, 0, 2),
    Sketcher.Constraint("Radius", 1, 4.15),
    Sketcher.Constraint("DistanceX", -1, 1, 1, 3, 185.0),
    Sketcher.Constraint("DistanceY", -1, 1, 1, 3, 13.25),
    Sketcher.Constraint("DistanceY", -1, 1, 0, 1, 16.161231),
    Sketcher.Constraint("DistanceY", -1, 1, 1, 2, 10.217049),
])
pad5 = body.newObject("PartDesign::Pad", "Pad004")
pad5.Profile = sketch19
pad5.Length = 4
pad5.Reversed = True

# Sketch on YZ plane
sketch20 = body.newObject("Sketcher::SketchObject", "Sketch019")
sketch20.AttachmentSupport = (doc.getObject("YZ_Plane"), [""])
sketch20.MapMode = "FlatFace"
sketch20.AttachmentOffset = App.Placement(V(0, 0, 4), App.Rotation())
add_polygon(sketch20, [(169, -8), (206, 30), (169, 30)])  # lines 0-2
sketch20.addConstraint([
    Sketcher.Constraint("Horizontal", 1),
    Sketcher.Constraint("Vertical", 2),
    Sketcher.Constraint("DistanceX", 1, 2, 1, 1, 36.8),
    Sketcher.Constraint("DistanceX", -1, 1, 0, 2, 205.9),
    Sketcher.Constraint("DistanceY", -1, 1, 0, 2, 29.9),
    Sketcher.Constraint("DistanceY", 2, 2, 2, 1, 38.230851),
])
pocket12 = body.newObject("PartDesign::Pocket", "Pocket011")
pocket12.Profile = sketch20
pocket12.Length = 4

# Sketch on YZ plane
sketch21 = body.newObject("Sketcher::SketchObject", "Sketch020")
sketch21.AttachmentSupport = (doc.getObject("YZ_Plane"), [""])
sketch21.MapMode = "FlatFace"
sketch21.AttachmentOffset = App.Placement(V(0, 0, 4), App.Rotation())
add_polygon(sketch21, [(164, 30), (164, -8), (169, -3), (169, 30)])  # lines 0-3
sketch21.addConstraint([
    Sketcher.Constraint("Vertical", 0),
    Sketcher.Constraint("Vertical", 2),
    Sketcher.Constraint("Horizontal", 3),
    Sketcher.Constraint("DistanceX", 3, 2, 3, 1, 5.0),
    Sketcher.Constraint("DistanceX", -1, 1, 0, 2, 164.1),
    Sketcher.Constraint("DistanceY", -1, 1, 2, 2, 29.9),
    Sketcher.Constraint("DistanceY", 0, 2, 0, 1, 38.230851),
    Sketcher.Constraint("DistanceY", 2, 1, 2, 2, 33.097872),
])
pocket13 = body.newObject("PartDesign::Pocket", "Pocket012")
pocket13.Profile = sketch21
pocket13.Length = 6

# Sketch on YZ plane
sketch22 = body.newObject("Sketcher::SketchObject", "Sketch021")
sketch22.AttachmentSupport = (doc.getObject("YZ_Plane"), [""])
sketch22.MapMode = "FlatFace"
sketch22.AttachmentOffset = App.Placement(V(0, 0, 4), App.Rotation())
add_polygon(sketch22, [(164, 20), (184, 30), (164, 30)])  # lines 0-2
sketch22.addConstraint([
    Sketcher.Constraint("Horizontal", 1),
    Sketcher.Constraint("Vertical", 2),
    Sketcher.Constraint("DistanceX", 1, 2, 1, 1, 20.0),
    Sketcher.Constraint("DistanceY", 2, 2, 2, 1, 10.15),
    Sketcher.Constraint("DistanceX", -1, 1, 0, 2, 184.1),
    Sketcher.Constraint("DistanceY", -1, 1, 0, 2, 29.9),
])
pad6 = body.newObject("PartDesign::Pad", "Pad005")
pad6.Profile = sketch22
pad6.Length = 4
pad6.Reversed = True

# Sketch on YZ plane
sketch23 = body.newObject("Sketcher::SketchObject", "Sketch022")
sketch23.AttachmentSupport = (doc.getObject("YZ_Plane"), [""])
sketch23.MapMode = "FlatFace"
sketch23.AttachmentOffset = App.Placement(V(0, 0, 90), App.Rotation())
add_polygon(sketch23, [(163, 36), (163, 31), (168, 36)])  # lines 0-2
sketch23.addConstraint([
    Sketcher.Constraint("Vertical", 0),
    Sketcher.Constraint("Horizontal", 2),
    Sketcher.Constraint("Equal", 2, 0),
    Sketcher.Constraint("DistanceX", 2, 2, 2, 1, 5.35),
    Sketcher.Constraint("DistanceX", -1, 1, 0, 2, 162.9),
    Sketcher.Constraint("DistanceY", -1, 1, 1, 2, 36.1),
])
pad7 = body.newObject("PartDesign::Pad", "Pad006")
pad7.Profile = sketch23
pad7.Length = 87
pad7.Reversed = True

# Sketch on YZ plane
sketch24 = body.newObject("Sketcher::SketchObject", "Sketch023")
sketch24.AttachmentSupport = (doc.getObject("YZ_Plane"), [""])
sketch24.MapMode = "FlatFace"
sketch24.AttachmentOffset = App.Placement(V(0, 0, 90), App.Rotation())
add_polygon(sketch24, [(207.1, 36.1), (207.1, 35.81), (207.38, 36.1)])  # lines 0-2
sketch24.addConstraint([
    Sketcher.Constraint("Vertical", 0),
    Sketcher.Constraint("Horizontal", 2),
    Sketcher.Constraint("DistanceX", -1, 1, 0, 2, 207.1),
    Sketcher.Constraint("DistanceY", -1, 1, 1, 2, 36.1),
    Sketcher.Constraint("DistanceX", 2, 2, 2, 1, 0.279793),
    Sketcher.Constraint("DistanceY", 0, 2, 0, 1, 0.287234),
])
pocket14 = body.newObject("PartDesign::Pocket", "Pocket013")
pocket14.Profile = sketch24
pocket14.Length = 84.5

doc.recompute()
